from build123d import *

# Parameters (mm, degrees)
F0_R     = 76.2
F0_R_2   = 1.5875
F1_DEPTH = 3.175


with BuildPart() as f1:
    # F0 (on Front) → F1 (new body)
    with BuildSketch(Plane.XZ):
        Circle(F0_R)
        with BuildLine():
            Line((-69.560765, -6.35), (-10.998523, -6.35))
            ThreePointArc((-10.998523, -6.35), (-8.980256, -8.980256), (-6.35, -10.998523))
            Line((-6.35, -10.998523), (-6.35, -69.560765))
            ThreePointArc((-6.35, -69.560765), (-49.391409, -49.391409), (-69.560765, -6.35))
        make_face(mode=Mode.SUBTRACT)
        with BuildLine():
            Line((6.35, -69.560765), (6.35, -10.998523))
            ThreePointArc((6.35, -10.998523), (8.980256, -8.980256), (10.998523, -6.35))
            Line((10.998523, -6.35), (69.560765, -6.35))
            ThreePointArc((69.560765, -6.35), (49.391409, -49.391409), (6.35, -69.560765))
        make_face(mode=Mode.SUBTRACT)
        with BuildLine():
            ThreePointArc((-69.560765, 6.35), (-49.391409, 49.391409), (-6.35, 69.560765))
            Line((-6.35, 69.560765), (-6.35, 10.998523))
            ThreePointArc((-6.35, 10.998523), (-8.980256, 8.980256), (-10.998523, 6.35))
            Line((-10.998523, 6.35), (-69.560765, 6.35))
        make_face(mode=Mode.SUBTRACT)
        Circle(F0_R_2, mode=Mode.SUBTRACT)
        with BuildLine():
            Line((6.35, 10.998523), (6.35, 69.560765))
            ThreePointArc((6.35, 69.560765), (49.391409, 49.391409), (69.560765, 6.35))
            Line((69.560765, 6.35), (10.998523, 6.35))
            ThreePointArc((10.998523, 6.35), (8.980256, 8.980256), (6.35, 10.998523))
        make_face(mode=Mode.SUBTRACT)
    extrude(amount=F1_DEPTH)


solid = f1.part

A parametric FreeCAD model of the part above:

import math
import FreeCAD as App
import Part
import Sketcher
Q = App.Units.Quantity

doc = App.newDocument("Part")
params = doc.addObject("Spreadsheet::Sheet", "Params")
for row, (alias, value) in enumerate([
    ("sketch1_diameter", "6 in"),
    ("sketch1_radius", "2.75 in"),
    ("sketch1_diameter2", "0.125 in"),
    ("pad1_length", "0.125 in"),
], start=1):
    params.set(f"A{row}", alias)
    params.set(f"B{row}", "=" + value)
    params.setAlias(f"B{row}", alias)

body = doc.addObject("PartDesign::Body", "Body")

sketch1 = doc.addObject("Sketcher::SketchObject", "Sketch")
body.addObject(sketch1)
sketch1.AttachmentSupport = (doc.XZ_Plane, [""])
sketch1.MapMode = "FlatFace"
sketch1.addGeometry([
    Part.Circle(App.Vector(0, 0, 0), App.Vector(0, 0, 1), 76.2),
    Part.ArcOfCircle(Part.Circle(App.Vector(-0.000001, -0.000001, 0), App.Vector(0, 0, 1), 69.849999), math.radians(-174.784092), math.radians(-95.215908)),
    Part.LineSegment(App.Vector(-69.560765, -6.35, 0), App.Vector(-10.998523, -6.35, 0)),
    Part.ArcOfCircle(Part.Circle(App.Vector(0.00001, 0.00001, 0), App.Vector(0, 0, 1), 12.700014), math.radians(-149.999984), math.radians(-120.000016)),
    Part.LineSegment(App.Vector(-6.35, -10.998523, 0), App.Vector(-6.35, -69.560765, 0)),
    Part.ArcOfCircle(Part.Circle(App.Vector(0.000001, -0.000001, 0), App.Vector(0, 0, 1), 69.849999), math.radians(-84.784092), math.radians(-5.215908)),
    Part.LineSegment(App.Vector(6.35, -69.560765, 0), App.Vector(6.35, -10.998523, 0)),
    Part.ArcOfCircle(Part.Circle(App.Vector(-0.00001, 0.00001, 0), App.Vector(0, 0, 1), 12.700014), math.radians(-59.999984), math.radians(-30.000016)),
    Part.LineSegment(App.Vector(10.998523, -6.35, 0), App.Vector(69.560765, -6.35, 0)),
    Part.LineSegment(App.Vector(-10.998523, 6.35, 0), App.Vector(-69.560765, 6.35, 0)),
    Part.ArcOfCircle(Part.Circle(App.Vector(-0.000001, 0.000001, 0), App.Vector(0, 0, 1), 69.849999), math.radians(95.215908), math.radians(174.784092)),
    Part.LineSegment(App.Vector(-6.35, 69.560765, 0), App.Vector(-6.35, 10.998523, 0)),
    Part.ArcOfCircle(Part.Circle(App.Vector(0.00001, -0.00001, 0), App.Vector(0, 0, 1), 12.700014), math.radians(120.000016), math.radians(149.999984)),
    Part.Circle(App.Vector(0, 0, 0), App.Vector(0, 0, 1), 1.5875),
    Part.ArcOfCircle(Part.Circle(App.Vector(-0.00001, -0.00001, 0), App.Vector(0, 0, 1), 12.700014), math.radians(30.000016), math.radians(59.999984)),
    Part.LineSegment(App.Vector(6.35, 10.998523, 0), App.Vector(6.35, 69.560765, 0)),
    Part.ArcOfCircle(Part.Circle(App.Vector(0.000001, 0.000001, 0), App.Vector(0, 0, 1), 69.849999), math.radians(5.215908), math.radians(84.784092)),
    Part.LineSegment(App.Vector(69.560765, 6.35, 0), App.Vector(10.998523, 6.35, 0)),
], False)
sketch1.addConstraint([
    Sketcher.Constraint("Coincident", 1, 1, 2, 1),
    Sketcher.Constraint("Coincident", 2, 2, 3, 1),
    Sketcher.Constraint("Coincident", 3, 2, 4, 1),
    Sketcher.Constraint("Coincident", 4, 2, 1, 2),
    Sketcher.Constraint("Coincident", 5, 1, 6, 1),
    Sketcher.Constraint("Coincident", 6, 2, 7, 1),
    Sketcher.Constraint("Coincident", 7, 2, 8, 1),
    Sketcher.Constraint("Coincident", 8, 2, 5, 2),
    Sketcher.Constraint("Coincident", 9, 2, 10, 2),
    Sketcher.Constraint("Coincident", 10, 1, 11, 1),
    Sketcher.Constraint("Coincident", 11, 2, 12, 1),
    Sketcher.Constraint("Coincident", 12, 2, 9, 1),
    Sketcher.Constraint("Coincident", 14, 2, 15, 1),
    Sketcher.Constraint("Coincident", 15, 2, 16, 2),
    Sketcher.Constraint("Coincident", 16, 1, 17, 1),
    Sketcher.Constraint("Coincident", 17, 2, 14, 1),
    Sketcher.Constraint("Horizontal", 2),
    Sketcher.Constraint("Vertical", 4),
    Sketcher.Constraint("Vertical", 6),
    Sketcher.Constraint("Horizontal", 8),
    Sketcher.Constraint("Horizontal", 9),
    Sketcher.Constraint("Vertical", 11),
    Sketcher.Constraint("Vertical", 15),
    Sketcher.Constraint("Horizontal", 17),
    Sketcher.Constraint("Coincident", 0, 3, -1, 1),
    Sketcher.Constraint("Coincident", 1, 3, -1, 1),
    Sketcher.Constraint("Coincident", 5, 3, -1, 1),
    Sketcher.Constraint("Coincident", 10, 3, -1, 1),
    Sketcher.Constraint("Coincident", 13, 3, -1, 1),
    Sketcher.Constraint("Coincident", 16, 3, -1, 1),
    Sketcher.Constraint("Equal", 1, 5),
    Sketcher.Constraint("Equal", 3, 7),
    Sketcher.Constraint("Equal", 5, 10),
    Sketcher.Constraint("Equal", 7, 12),
    Sketcher.Constraint("Equal", 12, 14),
    Sketcher.Constraint("Equal", 10, 16),
    Sketcher.Constraint("Symmetric", 7, 3, 12, 3, -1, 1),
    Sketcher.Constraint("Symmetric", 3, 3, 14, 3, -1, 1),
    Sketcher.Constraint("Symmetric", 3, 3, 7, 3, -2),
    Sketcher.Constraint("Horizontal", 4, 2, 5, 1),
    Sketcher.Constraint("Horizontal", 2, 2, 7, 2),
    Sketcher.Constraint("Horizontal", 11, 2, 14, 2),
    Sketcher.Constraint("Horizontal", 12, 2, 16, 1),
    Sketcher.Constraint("Vertical", 1, 1, 9, 2),
    Sketcher.Constraint("Vertical", 4, 2, 10, 1),
    Sketcher.Constraint("Equal", 17, 4),
    Sketcher.Constraint("Diameter", 0, Q("6 in")),
    Sketcher.Constraint("Radius", 1, Q("2.75 in")),
    Sketcher.Constraint("Diameter", 13, Q("0.125 in")),
    Sketcher.Constraint("DistanceX", 4, 2, 5, 1, Q("0.5 in")),
    Sketcher.Constraint("DistanceY", 1, 1, 9, 2, Q("0.5 in")),
    Sketcher.Constraint("DistanceX", 2, 1, 2, 2, Q("2.3056001 in")),
    Sketcher.Constraint("Radius", 3, 12.700014),
])
sketch1.setExpression("Constraints[46]", "Params.sketch1_diameter")
sketch1.setExpression("Constraints[47]", "Params.sketch1_radius")
sketch1.setExpression("Constraints[48]", "Params.sketch1_diameter2")
pad1 = doc.addObject("PartDesign::Pad", "Pad")
body.addObject(pad1)
pad1.Profile = sketch1
pad1.setExpression("Length", "Params.pad1_length")

doc.recompute()
